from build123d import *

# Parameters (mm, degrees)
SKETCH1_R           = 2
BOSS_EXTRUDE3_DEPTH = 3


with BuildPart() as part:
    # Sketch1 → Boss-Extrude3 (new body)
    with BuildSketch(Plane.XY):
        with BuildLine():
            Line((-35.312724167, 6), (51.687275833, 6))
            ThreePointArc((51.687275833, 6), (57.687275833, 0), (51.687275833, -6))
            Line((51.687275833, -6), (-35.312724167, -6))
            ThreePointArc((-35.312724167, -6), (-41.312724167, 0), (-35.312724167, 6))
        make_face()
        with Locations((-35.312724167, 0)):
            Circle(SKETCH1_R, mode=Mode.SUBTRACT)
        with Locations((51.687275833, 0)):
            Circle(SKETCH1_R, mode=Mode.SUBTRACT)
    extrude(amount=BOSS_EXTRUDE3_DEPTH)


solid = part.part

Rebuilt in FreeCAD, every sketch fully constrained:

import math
import FreeCAD as App
import Part
import Sketcher
from FreeCAD import Vector

doc = App.newDocument("Part")
params = doc.addObject("Spreadsheet::Sheet", "Params")
for row, (alias, value) in enumerate([
    ("sketch1_diameter", "4 mm"),
    ("sketch1_radius", "6 mm"),
    ("sketch1_width", "87 mm"),
    ("pad1_length", "3 mm"),
], start=1):
    params.set(f"A{row}", alias)
    params.set(f"B{row}", "=" + value)
    params.setAlias(f"B{row}", alias)

body = doc.addObject("PartDesign::Body", "Body")

sketch1 = doc.addObject("Sketcher::SketchObject", "Sketch")
body.addObject(sketch1)
sketch1.AttachmentSupport = (doc.XY_Plane, [""])
sketch1.MapMode = "FlatFace"
sketch1.addGeometry([
    Part.LineSegment(Vector(51.7, 6, 0), Vector(-35.3, 6, 0)),
    Part.ArcOfCircle(Part.Circle(Vector(-35.3, 0, 0), Vector(0, 0, 1), 6), math.radians(90), math.radians(270)),
    Part.LineSegment(Vector(-35.3, -6, 0), Vector(51.7, -6, 0)),
    Part.ArcOfCircle(Part.Circle(Vector(51.7, 0, 0), Vector(0, 0, 1), 6), math.radians(-90), math.radians(90)),
    Part.Circle(Vector(51.7, 0, 0), Vector(0, 0, 1), 2),
    Part.Circle(Vector(-35.3, 0, 0), Vector(0, 0, 1), 2),
], False)
sketch1.addConstraint([
    Sketcher.Constraint("Tangent", 0, 2, 1, 1),
    Sketcher.Constraint("Tangent", 1, 2, 2, 1),
    Sketcher.Constraint("Tangent", 2, 2, 3, 1),
    Sketcher.Constraint("Tangent", 3, 2, 0, 1),
    Sketcher.Constraint("Horizontal", 0),
    Sketcher.Constraint("Horizontal", 2),
    Sketcher.Constraint("Coincident", 4, 3, 3, 3),
    Sketcher.Constraint("Coincident", 5, 3, 1, 3),
    Sketcher.Constraint("Equal", 4, 5),
    Sketcher.Constraint("PointOnObject", 1, 3, -1),
    Sketcher.Constraint("Diameter", 4, 4.0),
    Sketcher.Constraint("Radius", 1, 6.0),
    Sketcher.Constraint("DistanceX", 0, 2, 0, 1, 87.0),
    Sketcher.Constraint("DistanceX", 1, 3, -1, 1, 35.312724),
])
sketch1.setExpression("Constraints[10]", "Params.sketch1_diameter")
sketch1.setExpression("Constraints[11]", "Params.sketch1_radius")
sketch1.setExpression("Constraints[12]", "Params.sketch1_width")
pad1 = doc.addObject("PartDesign::Pad", "Pad")
body.addObject(pad1)
pad1.Profile = sketch1
pad1.setExpression("Length", "Params.pad1_length")

doc.recompute()
